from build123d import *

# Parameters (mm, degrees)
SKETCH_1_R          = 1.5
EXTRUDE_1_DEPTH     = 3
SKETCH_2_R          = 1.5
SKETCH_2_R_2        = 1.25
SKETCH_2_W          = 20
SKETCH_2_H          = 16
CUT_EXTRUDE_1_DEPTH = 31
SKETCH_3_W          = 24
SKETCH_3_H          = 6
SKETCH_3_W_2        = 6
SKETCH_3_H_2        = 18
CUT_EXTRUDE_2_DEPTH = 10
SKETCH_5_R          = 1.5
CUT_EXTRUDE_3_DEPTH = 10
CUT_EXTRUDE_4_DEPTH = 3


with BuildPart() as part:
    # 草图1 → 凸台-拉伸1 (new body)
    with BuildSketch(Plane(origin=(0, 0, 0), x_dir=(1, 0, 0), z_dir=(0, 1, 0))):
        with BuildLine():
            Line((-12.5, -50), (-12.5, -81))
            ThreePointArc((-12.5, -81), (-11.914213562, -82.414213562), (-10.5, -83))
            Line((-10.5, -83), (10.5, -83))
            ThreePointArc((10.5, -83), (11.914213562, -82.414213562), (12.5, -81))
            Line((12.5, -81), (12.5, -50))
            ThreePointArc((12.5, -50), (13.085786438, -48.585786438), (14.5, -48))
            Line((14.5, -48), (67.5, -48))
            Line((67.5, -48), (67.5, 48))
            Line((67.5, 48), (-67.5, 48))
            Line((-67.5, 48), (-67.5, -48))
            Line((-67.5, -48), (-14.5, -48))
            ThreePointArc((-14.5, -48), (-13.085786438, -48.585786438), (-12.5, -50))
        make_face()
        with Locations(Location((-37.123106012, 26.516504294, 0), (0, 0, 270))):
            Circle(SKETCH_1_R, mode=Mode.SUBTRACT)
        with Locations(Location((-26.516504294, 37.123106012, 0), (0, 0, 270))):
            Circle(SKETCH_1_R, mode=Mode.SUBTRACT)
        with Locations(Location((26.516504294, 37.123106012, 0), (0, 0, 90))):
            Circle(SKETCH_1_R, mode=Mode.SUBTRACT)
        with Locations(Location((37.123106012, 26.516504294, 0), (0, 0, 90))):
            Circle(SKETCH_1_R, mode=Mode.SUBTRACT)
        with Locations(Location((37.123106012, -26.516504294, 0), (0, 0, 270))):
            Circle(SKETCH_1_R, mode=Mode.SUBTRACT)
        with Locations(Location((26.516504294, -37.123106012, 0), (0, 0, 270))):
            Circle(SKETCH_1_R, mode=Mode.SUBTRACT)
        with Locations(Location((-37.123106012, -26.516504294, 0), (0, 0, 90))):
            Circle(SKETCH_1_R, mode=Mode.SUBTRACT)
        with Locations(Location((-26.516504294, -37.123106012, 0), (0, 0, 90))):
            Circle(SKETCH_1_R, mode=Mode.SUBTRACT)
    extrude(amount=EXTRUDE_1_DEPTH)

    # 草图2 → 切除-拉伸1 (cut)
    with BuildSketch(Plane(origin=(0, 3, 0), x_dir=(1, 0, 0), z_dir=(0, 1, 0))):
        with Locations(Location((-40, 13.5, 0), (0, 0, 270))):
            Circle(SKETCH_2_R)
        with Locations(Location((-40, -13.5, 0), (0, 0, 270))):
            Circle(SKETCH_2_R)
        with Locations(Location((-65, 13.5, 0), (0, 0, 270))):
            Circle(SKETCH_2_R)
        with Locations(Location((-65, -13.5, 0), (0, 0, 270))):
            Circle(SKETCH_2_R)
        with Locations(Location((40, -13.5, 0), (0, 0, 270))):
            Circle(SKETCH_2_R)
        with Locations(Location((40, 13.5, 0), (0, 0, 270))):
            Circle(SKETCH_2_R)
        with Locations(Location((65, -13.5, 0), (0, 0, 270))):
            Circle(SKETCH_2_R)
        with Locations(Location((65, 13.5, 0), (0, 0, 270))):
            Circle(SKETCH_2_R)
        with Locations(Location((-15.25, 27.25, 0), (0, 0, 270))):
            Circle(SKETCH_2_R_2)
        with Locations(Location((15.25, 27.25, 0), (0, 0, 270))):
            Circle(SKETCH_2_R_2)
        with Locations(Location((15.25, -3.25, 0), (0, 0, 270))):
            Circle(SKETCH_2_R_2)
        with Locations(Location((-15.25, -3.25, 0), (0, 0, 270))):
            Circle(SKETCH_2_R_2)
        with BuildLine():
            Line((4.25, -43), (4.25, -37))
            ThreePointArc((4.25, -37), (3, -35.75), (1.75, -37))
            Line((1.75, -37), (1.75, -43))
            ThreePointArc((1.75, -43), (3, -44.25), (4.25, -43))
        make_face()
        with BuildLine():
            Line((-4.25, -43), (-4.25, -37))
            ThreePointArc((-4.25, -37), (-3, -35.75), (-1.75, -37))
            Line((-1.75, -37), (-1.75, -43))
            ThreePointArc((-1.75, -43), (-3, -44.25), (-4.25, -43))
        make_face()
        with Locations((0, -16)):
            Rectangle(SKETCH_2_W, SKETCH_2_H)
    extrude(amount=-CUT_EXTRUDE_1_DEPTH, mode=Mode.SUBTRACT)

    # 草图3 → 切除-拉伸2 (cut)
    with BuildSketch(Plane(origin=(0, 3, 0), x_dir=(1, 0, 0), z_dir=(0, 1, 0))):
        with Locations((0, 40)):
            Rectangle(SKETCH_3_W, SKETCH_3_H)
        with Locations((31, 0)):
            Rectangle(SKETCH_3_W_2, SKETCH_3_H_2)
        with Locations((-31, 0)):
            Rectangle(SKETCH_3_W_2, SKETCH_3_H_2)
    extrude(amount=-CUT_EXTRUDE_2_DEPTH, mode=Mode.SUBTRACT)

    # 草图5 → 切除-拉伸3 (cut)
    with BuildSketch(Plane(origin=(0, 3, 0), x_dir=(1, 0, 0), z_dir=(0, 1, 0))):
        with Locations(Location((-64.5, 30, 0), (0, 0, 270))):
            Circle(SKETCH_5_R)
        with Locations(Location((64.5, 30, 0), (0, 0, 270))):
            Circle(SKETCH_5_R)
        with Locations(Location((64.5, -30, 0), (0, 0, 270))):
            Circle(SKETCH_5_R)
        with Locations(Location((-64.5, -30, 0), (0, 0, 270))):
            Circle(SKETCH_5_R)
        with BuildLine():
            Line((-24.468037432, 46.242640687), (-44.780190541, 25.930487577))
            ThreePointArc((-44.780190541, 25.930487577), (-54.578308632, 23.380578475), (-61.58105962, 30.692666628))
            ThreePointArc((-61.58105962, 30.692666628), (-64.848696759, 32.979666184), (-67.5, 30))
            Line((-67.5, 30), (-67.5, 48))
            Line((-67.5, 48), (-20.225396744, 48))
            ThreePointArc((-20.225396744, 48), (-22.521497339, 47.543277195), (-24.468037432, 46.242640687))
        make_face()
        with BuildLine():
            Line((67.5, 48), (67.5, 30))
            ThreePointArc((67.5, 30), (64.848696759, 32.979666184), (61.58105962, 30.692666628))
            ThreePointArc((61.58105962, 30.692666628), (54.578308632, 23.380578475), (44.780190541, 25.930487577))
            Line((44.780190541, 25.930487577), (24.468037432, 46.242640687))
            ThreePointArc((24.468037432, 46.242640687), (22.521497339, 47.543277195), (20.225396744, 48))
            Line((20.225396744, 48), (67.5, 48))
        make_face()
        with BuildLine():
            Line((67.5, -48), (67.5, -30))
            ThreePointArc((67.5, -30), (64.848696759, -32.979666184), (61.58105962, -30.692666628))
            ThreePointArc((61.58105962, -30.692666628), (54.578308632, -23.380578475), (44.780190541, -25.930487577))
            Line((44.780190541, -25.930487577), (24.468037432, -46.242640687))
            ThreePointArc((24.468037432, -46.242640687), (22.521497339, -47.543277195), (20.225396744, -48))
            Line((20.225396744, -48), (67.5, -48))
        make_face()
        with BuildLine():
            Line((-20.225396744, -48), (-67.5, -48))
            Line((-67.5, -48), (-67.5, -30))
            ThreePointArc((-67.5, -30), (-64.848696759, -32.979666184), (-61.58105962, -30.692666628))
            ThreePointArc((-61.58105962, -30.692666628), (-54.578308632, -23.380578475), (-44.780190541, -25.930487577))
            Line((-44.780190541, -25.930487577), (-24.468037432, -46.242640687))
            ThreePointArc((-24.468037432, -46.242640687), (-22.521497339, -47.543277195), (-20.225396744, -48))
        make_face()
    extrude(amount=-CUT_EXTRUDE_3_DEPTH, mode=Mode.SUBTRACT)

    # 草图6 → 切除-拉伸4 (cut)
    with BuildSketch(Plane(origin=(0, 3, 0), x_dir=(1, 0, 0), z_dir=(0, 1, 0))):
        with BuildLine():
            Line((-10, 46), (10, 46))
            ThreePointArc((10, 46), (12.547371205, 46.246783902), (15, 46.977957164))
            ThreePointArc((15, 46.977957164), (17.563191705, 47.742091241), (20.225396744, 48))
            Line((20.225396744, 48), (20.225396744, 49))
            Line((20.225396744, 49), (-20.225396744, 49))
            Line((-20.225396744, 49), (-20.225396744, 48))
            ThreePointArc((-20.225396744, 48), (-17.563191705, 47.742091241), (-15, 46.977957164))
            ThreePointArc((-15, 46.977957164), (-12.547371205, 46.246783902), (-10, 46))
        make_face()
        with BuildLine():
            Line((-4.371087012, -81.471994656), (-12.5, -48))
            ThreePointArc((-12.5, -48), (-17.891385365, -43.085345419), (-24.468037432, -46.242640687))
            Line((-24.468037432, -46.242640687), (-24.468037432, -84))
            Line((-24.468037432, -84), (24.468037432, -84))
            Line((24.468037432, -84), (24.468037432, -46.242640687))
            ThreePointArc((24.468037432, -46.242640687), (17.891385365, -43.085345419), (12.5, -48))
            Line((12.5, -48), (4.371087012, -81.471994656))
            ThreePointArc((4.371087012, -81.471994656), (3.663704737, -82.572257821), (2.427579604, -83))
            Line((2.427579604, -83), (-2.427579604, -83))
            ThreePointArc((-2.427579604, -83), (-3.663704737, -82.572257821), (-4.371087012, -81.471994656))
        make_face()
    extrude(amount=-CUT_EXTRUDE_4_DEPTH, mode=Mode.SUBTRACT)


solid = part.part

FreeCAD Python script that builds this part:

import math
import FreeCAD as App
import Part
import Sketcher
from FreeCAD import Vector
Q = App.Units.Quantity

doc = App.newDocument("Part")
body = doc.addObject("PartDesign::Body", "Body")

# Sketch on XZ plane
sketch1 = doc.addObject("Sketcher::SketchObject", "Sketch")
body.addObject(sketch1)
sketch1.AttachmentSupport = (doc.XZ_Plane, [""])
sketch1.MapMode = "FlatFace"
sketch1.addGeometry([
    Part.LineSegment(Vector(-12.5, 50, 0), Vector(-12.5, 81, 0)),  # 0
    Part.ArcOfCircle(Part.Circle(Vector(-10.5, 81, 0), Vector(0, 0, 1), 2), math.radians(90), math.radians(180)),  # 1
    Part.LineSegment(Vector(-10.5, 83, 0), Vector(10.5, 83, 0)),  # 2
    Part.ArcOfCircle(Part.Circle(Vector(10.5, 81, 0), Vector(0, 0, 1), 2), math.radians(0), math.radians(90)),  # 3
    Part.LineSegment(Vector(12.5, 81, 0), Vector(12.5, 50, 0)),  # 4
    Part.ArcOfCircle(Part.Circle(Vector(14.5, 50, 0), Vector(0, 0, 1), 2), math.radians(-180), math.radians(-90)),  # 5
    Part.LineSegment(Vector(14.5, 48, 0), Vector(67.5, 48, 0)),  # 6
    Part.LineSegment(Vector(67.5, 48, 0), Vector(67.5, -48, 0)),  # 7
    Part.LineSegment(Vector(67.5, -48, 0), Vector(-67.5, -48, 0)),  # 8
    Part.LineSegment(Vector(-67.5, -48, 0), Vector(-67.5, 48, 0)),  # 9
    Part.LineSegment(Vector(-67.5, 48, 0), Vector(-14.5, 48, 0)),  # 10
    Part.ArcOfCircle(Part.Circle(Vector(-14.5, 50, 0), Vector(0, 0, 1), 2), math.radians(-90), math.radians(0)),  # 11
    Part.Circle(Vector(-26.5, 37.1, 0), Vector(0, 0, 1), 1.5),  # 12
    Part.Circle(Vector(-37.1, 26.5, 0), Vector(0, 0, 1), 1.5),  # 13
    Part.Circle(Vector(26.5, 37.1, 0), Vector(0, 0, 1), 1.5),  # 14
    Part.Circle(Vector(37.1, 26.5, 0), Vector(0, 0, 1), 1.5),  # 15
    Part.Circle(Vector(-37.1, -26.5, 0), Vector(0, 0, 1), 1.5),  # 16
    Part.Circle(Vector(-26.5, -37.1, 0), Vector(0, 0, 1), 1.5),  # 17
    Part.Circle(Vector(37.1, -26.5, 0), Vector(0, 0, 1), 1.5),  # 18
    Part.Circle(Vector(26.5, -37.1, 0), Vector(0, 0, 1), 1.5),  # 19
], False)
sketch1.addConstraint([
    Sketcher.Constraint("Tangent", 0, 2, 1, 2),
    Sketcher.Constraint("Tangent", 1, 1, 2, 1),
    Sketcher.Constraint("Tangent", 2, 2, 3, 2),
    Sketcher.Constraint("Tangent", 3, 1, 4, 1),
    Sketcher.Constraint("Tangent", 4, 2, 5, 1),
    Sketcher.Constraint("Tangent", 5, 2, 6, 1),
    Sketcher.Constraint("Coincident", 6, 2, 7, 1),
    Sketcher.Constraint("Coincident", 7, 2, 8, 1),
    Sketcher.Constraint("Coincident", 8, 2, 9, 1),
    Sketcher.Constraint("Coincident", 9, 2, 10, 1),
    Sketcher.Constraint("Tangent", 10, 2, 11, 1),
    Sketcher.Constraint("Tangent", 11, 2, 0, 1),
    Sketcher.Constraint("Vertical", 0),
    Sketcher.Constraint("Horizontal", 2),
    Sketcher.Constraint("Vertical", 4),
    Sketcher.Constraint("Horizontal", 6),
    Sketcher.Constraint("Vertical", 7),
    Sketcher.Constraint("Horizontal", 8),
    Sketcher.Constraint("Vertical", 9),
    Sketcher.Constraint("Horizontal", 10),
    Sketcher.Constraint("Equal", 1, 3),
    Sketcher.Constraint("Equal", 3, 5),
    Sketcher.Constraint("Equal", 5, 11),
    Sketcher.Constraint("Equal", 12, 13),
    Sketcher.Constraint("Equal", 13, 14),
    Sketcher.Constraint("Equal", 14, 15),
    Sketcher.Constraint("Equal", 15, 16),
    Sketcher.Constraint("Equal", 16, 17),
    Sketcher.Constraint("Equal", 17, 18),
    Sketcher.Constraint("Equal", 18, 19),
    Sketcher.Constraint("Symmetric", 15, 3, 16, 3, -1, 1),
    Sketcher.Constraint("Symmetric", 14, 3, 17, 3, -1, 1),
    Sketcher.Constraint("Symmetric", 13, 3, 18, 3, -1, 1),
    Sketcher.Constraint("Symmetric", 12, 3, 19, 3, -1, 1),
    Sketcher.Constraint("Symmetric", 6, 2, 8, 2, -1, 1),
    Sketcher.Constraint("Symmetric", 5, 3, 11, 3, -2),
    Sketcher.Constraint("Symmetric", 12, 3, 14, 3, -2),
    Sketcher.Constraint("Symmetric", 13, 3, 15, 3, -2),
    Sketcher.Constraint("Diameter", 12, Q("3 mm")),
    Sketcher.Constraint("Radius", 1, Q("2 mm")),
    Sketcher.Constraint("DistanceX", 2, 1, 2, 2, Q("21 mm")),
    Sketcher.Constraint("DistanceX", 6, 1, 6, 2, Q("53 mm")),
    Sketcher.Constraint("DistanceY", 0, 1, 0, 2, Q("31 mm")),
    Sketcher.Constraint("DistanceY", 7, 2, 7, 1, Q("96 mm")),
    Sketcher.Constraint("DistanceX", 13, 3, 12, 3, Q("10.606602 mm")),
    Sketcher.Constraint("DistanceY", 13, 3, 12, 3, Q("10.606602 mm")),
    Sketcher.Constraint("DistanceX", 12, 3, 14, 3, Q("53.033009 mm")),
    Sketcher.Constraint("DistanceY", 16, 3, 13, 3, Q("53.033009 mm")),
])
pad1 = doc.addObject("PartDesign::Pad", "Pad")
body.addObject(pad1)
pad1.Profile = sketch1
pad1.Length = 3
pad1.Reversed = True

# Sketch on XZ plane
sketch2 = doc.addObject("Sketcher::SketchObject", "Sketch001")
body.addObject(sketch2)
sketch2.AttachmentSupport = (doc.XZ_Plane, [""])
sketch2.MapMode = "FlatFace"
sketch2.AttachmentOffset = App.Placement(Vector(0, 0, -3), App.Rotation())
sketch2.addGeometry([
    Part.Circle(Vector(-40, -13.5, 0), Vector(0, 0, 1), 1.5),  # 0
    Part.Circle(Vector(-40, 13.5, 0), Vector(0, 0, 1), 1.5),  # 1
    Part.Circle(Vector(-65, -13.5, 0), Vector(0, 0, 1), 1.5),  # 2
    Part.Circle(Vector(-65, 13.5, 0), Vector(0, 0, 1), 1.5),  # 3
    Part.Circle(Vector(40, 13.5, 0), Vector(0, 0, 1), 1.5),  # 4
    Part.Circle(Vector(40, -13.5, 0), Vector(0, 0, 1), 1.5),  # 5
    Part.Circle(Vector(65, 13.5, 0), Vector(0, 0, 1), 1.5),  # 6
    Part.Circle(Vector(65, -13.5, 0), Vector(0, 0, 1), 1.5),  # 7
    Part.Circle(Vector(-15.2, -27.2, 0), Vector(0, 0, 1), 1.2),  # 8
    Part.Circle(Vector(15.2, -27.2, 0), Vector(0, 0, 1), 1.2),  # 9
    Part.Circle(Vector(15.2, 3.2, 0), Vector(0, 0, 1), 1.2),  # 10
    Part.Circle(Vector(-15.2, 3.2, 0), Vector(0, 0, 1), 1.2),  # 11
    Part.LineSegment(Vector(4.2, 43, 0), Vector(4.2, 37, 0)),  # 12
    Part.ArcOfCircle(Part.Circle(Vector(3, 37, 0), Vector(0, 0, 1), 1.2), math.radians(180), math.radians(360)),  # 13
    Part.LineSegment(Vector(1.8, 37, 0), Vector(1.8, 43, 0)),  # 14
    Part.ArcOfCircle(Part.Circle(Vector(3, 43, 0), Vector(0, 0, 1), 1.2), math.radians(0), math.radians(180)),  # 15
    Part.LineSegment(Vector(-4.2, 37, 0), Vector(-4.2, 43, 0)),  # 16
    Part.ArcOfCircle(Part.Circle(Vector(-3, 43, 0), Vector(0, 0, 1), 1.2), math.radians(0), math.radians(180)),  # 17
    Part.LineSegment(Vector(-1.8, 43, 0), Vector(-1.8, 37, 0)),  # 18
    Part.ArcOfCircle(Part.Circle(Vector(-3, 37, 0), Vector(0, 0, 1), 1.2), math.radians(180), math.radians(360)),  # 19
    Part.LineSegment(Vector(-10, 8, 0), Vector(-10, 24, 0)),  # 20
    Part.LineSegment(Vector(-10, 24, 0), Vector(10, 24, 0)),  # 21
    Part.LineSegment(Vector(10, 24, 0), Vector(10, 8, 0)),  # 22
    Part.LineSegment(Vector(10, 8, 0), Vector(-10, 8, 0)),  # 23
], False)
sketch2.addConstraint([
    Sketcher.Constraint("Tangent", 12, 2, 13, 2),
    Sketcher.Constraint("Tangent", 13, 1, 14, 1),
    Sketcher.Constraint("Tangent", 14, 2, 15, 2),
    Sketcher.Constraint("Tangent", 15, 1, 12, 1),
    Sketcher.Constraint("Tangent", 16, 2, 17, 2),
    Sketcher.Constraint("Tangent", 17, 1, 18, 1),
    Sketcher.Constraint("Tangent", 18, 2, 19, 2),
    Sketcher.Constraint("Tangent", 19, 1, 16, 1),
    Sketcher.Constraint("Coincident", 20, 2, 21, 1),
    Sketcher.Constraint("Coincident", 21, 2, 22, 1),
    Sketcher.Constraint("Coincident", 22, 2, 23, 1),
    Sketcher.Constraint("Coincident", 23, 2, 20, 1),
    Sketcher.Constraint("Vertical", 12),
    Sketcher.Constraint("Vertical", 14),
    Sketcher.Constraint("Vertical", 16),
    Sketcher.Constraint("Vertical", 18),
    Sketcher.Constraint("Vertical", 20),
    Sketcher.Constraint("Horizontal", 21),
    Sketcher.Constraint("Vertical", 22),
    Sketcher.Constraint("Horizontal", 23),
    Sketcher.Constraint("Equal", 0, 1),
    Sketcher.Constraint("Equal", 1, 2),
    Sketcher.Constraint("Equal", 2, 3),
    Sketcher.Constraint("Equal", 3, 4),
    Sketcher.Constraint("Equal", 4, 5),
    Sketcher.Constraint("Equal", 5, 6),
    Sketcher.Constraint("Equal", 6, 7),
    Sketcher.Constraint("Equal", 8, 9),
    Sketcher.Constraint("Equal", 9, 10),
    Sketcher.Constraint("Equal", 10, 11),
    Sketcher.Constraint("Equal", 11, 13),
    Sketcher.Constraint("Equal", 15, 17),
    Sketcher.Constraint("Symmetric", 0, 3, 4, 3, -1, 1),
    Sketcher.Constraint("Symmetric", 1, 3, 5, 3, -1, 1),
    Sketcher.Constraint("Symmetric", 2, 3, 6, 3, -1, 1),
    Sketcher.Constraint("Symmetric", 3, 3, 7, 3, -1, 1),
    Sketcher.Constraint("Symmetric", 1, 3, 4, 3, -2),
    Sketcher.Constraint("Symmetric", 3, 3, 6, 3, -2),
    Sketcher.Constraint("Symmetric", 8, 3, 9, 3, -2),
    Sketcher.Constraint("Symmetric", 10, 3, 11, 3, -2),
    Sketcher.Constraint("Symmetric", 15, 3, 17, 3, -2),
    Sketcher.Constraint("Horizontal", 0, 3, 2, 3),
    Sketcher.Constraint("Horizontal", 13, 3, 19, 3),
    Sketcher.Constraint("Vertical", 9, 3, 10, 3),
    Sketcher.Constraint("Diameter", 0, Q("3 mm")),
    Sketcher.Constraint("Diameter", 8, Q("2.5 mm")),
    Sketcher.Constraint("DistanceX", 21, 1, 21, 2, Q("20 mm")),
    Sketcher.Constraint("DistanceY", 12, 2, 12, 1, Q("6 mm")),
    Sketcher.Constraint("DistanceY", 20, 1, 20, 2, Q("16 mm")),
    Sketcher.Constraint("DistanceX", 0, 3, -1, 1, Q("40 mm")),
    Sketcher.Constraint("DistanceX", 2, 3, -1, 1, Q("65 mm")),
    Sketcher.Constraint("DistanceX", -1, 1, 13, 3, Q("3 mm")),
    Sketcher.Constraint("DistanceY", -1, 1, 13, 3, Q("37 mm")),
    Sketcher.Constraint("DistanceX", 20, 2, -1, 1, Q("10 mm")),
    Sketcher.Constraint("DistanceY", -1, 1, 20, 2, Q("24 mm")),
    Sketcher.Constraint("DistanceY", 0, 3, 1, 3, Q("27 mm")),
    Sketcher.Constraint("DistanceX", 12, 2, 10, 3, Q("11 mm")),
    Sketcher.Constraint("DistanceY", 9, 3, 10, 3, Q("30.5 mm")),
    Sketcher.Constraint("DistanceY", 8, 3, -1, 1, Q("27.25 mm")),
])
pocket1 = doc.addObject("PartDesign::Pocket", "Pocket")
body.addObject(pocket1)
pocket1.Profile = sketch2
pocket1.Length = 31
pocket1.Reversed = True

# Sketch on XZ plane
sketch3 = doc.addObject("Sketcher::SketchObject", "Sketch002")
body.addObject(sketch3)
sketch3.AttachmentSupport = (doc.XZ_Plane, [""])
sketch3.MapMode = "FlatFace"
sketch3.AttachmentOffset = App.Placement(Vector(0, 0, -3), App.Rotation())
sketch3.addGeometry([
    Part.LineSegment(Vector(-12, -43, 0), Vector(-12, -37, 0)),  # 0
    Part.LineSegment(Vector(-12, -37, 0), Vector(12, -37, 0)),  # 1
    Part.LineSegment(Vector(12, -37, 0), Vector(12, -43, 0)),  # 2
    Part.LineSegment(Vector(12, -43, 0), Vector(-12, -43, 0)),  # 3
    Part.LineSegment(Vector(28, -9, 0), Vector(28, 9, 0)),  # 4
    Part.LineSegment(Vector(28, 9, 0), Vector(34, 9, 0)),  # 5
    Part.LineSegment(Vector(34, 9, 0), Vector(34, -9, 0)),  # 6
    Part.LineSegment(Vector(34, -9, 0), Vector(28, -9, 0)),  # 7
    Part.LineSegment(Vector(-34, -9, 0), Vector(-34, 9, 0)),  # 8
    Part.LineSegment(Vector(-34, 9, 0), Vector(-28, 9, 0)),  # 9
    Part.LineSegment(Vector(-28, 9, 0), Vector(-28, -9, 0)),  # 10
    Part.LineSegment(Vector(-28, -9, 0), Vector(-34, -9, 0)),  # 11
], False)
sketch3.addConstraint([
    Sketcher.Constraint("Coincident", 0, 2, 1, 1),
    Sketcher.Constraint("Coincident", 1, 2, 2, 1),
    Sketcher.Constraint("Coincident", 2, 2, 3, 1),
    Sketcher.Constraint("Coincident", 3, 2, 0, 1),
    Sketcher.Constraint("Coincident", 4, 2, 5, 1),
    Sketcher.Constraint("Coincident", 5, 2, 6, 1),
    Sketcher.Constraint("Coincident", 6, 2, 7, 1),
    Sketcher.Constraint("Coincident", 7, 2, 4, 1),
    Sketcher.Constraint("Coincident", 8, 2, 9, 1),
    Sketcher.Constraint("Coincident", 9, 2, 10, 1),
    Sketcher.Constraint("Coincident", 10, 2, 11, 1),
    Sketcher.Constraint("Coincident", 11, 2, 8, 1),
    Sketcher.Constraint("Vertical", 0),
    Sketcher.Constraint("Horizontal", 1),
    Sketcher.Constraint("Vertical", 2),
    Sketcher.Constraint("Horizontal", 3),
    Sketcher.Constraint("Vertical", 4),
    Sketcher.Constraint("Horizontal", 5),
    Sketcher.Constraint("Vertical", 6),
    Sketcher.Constraint("Horizontal", 7),
    Sketcher.Constraint("Vertical", 8),
    Sketcher.Constraint("Horizontal", 9),
    Sketcher.Constraint("Vertical", 10),
    Sketcher.Constraint("Horizontal", 11),
    Sketcher.Constraint("Symmetric", 6, 2, 8, 2, -1, 1),
    Sketcher.Constraint("Symmetric", 4, 2, 10, 2, -1, 1),
    Sketcher.Constraint("Horizontal", 5, 2, 8, 2),
    Sketcher.Constraint("Equal", 11, 0),
    Sketcher.Constraint("DistanceX", 1, 1, 1, 2, Q("24 mm")),
    Sketcher.Constraint("DistanceX", 5, 1, 5, 2, Q("6 mm")),
    Sketcher.Constraint("DistanceY", 4, 1, 4, 2, Q("18 mm")),
    Sketcher.Constraint("DistanceX", 0, 2, -1, 1, Q("12 mm")),
    Sketcher.Constraint("DistanceY", 0, 2, -1, 1, Q("37 mm")),
    Sketcher.Constraint("DistanceX", -1, 1, 4, 2, Q("28 mm")),
])
pocket2 = doc.addObject("PartDesign::Pocket", "Pocket001")
body.addObject(pocket2)
pocket2.Profile = sketch3
pocket2.Length = 10
pocket2.Reversed = True

# Sketch on XZ plane
sketch4 = doc.addObject("Sketcher::SketchObject", "Sketch003")
body.addObject(sketch4)
sketch4.AttachmentSupport = (doc.XZ_Plane, [""])
sketch4.MapMode = "FlatFace"
sketch4.AttachmentOffset = App.Placement(Vector(0, 0, -3), App.Rotation())
sketch4.addGeometry([
    Part.Circle(Vector(-64.5, -30, 0), Vector(0, 0, 1), 1.5),  # 0
    Part.Circle(Vector(64.5, -30, 0), Vector(0, 0, 1), 1.5),  # 1
    Part.Circle(Vector(64.5, 30, 0), Vector(0, 0, 1), 1.5),  # 2
    Part.Circle(Vector(-64.5, 30, 0), Vector(0, 0, 1), 1.5),  # 3
    Part.LineSegment(Vector(-44.8, -25.9, 0), Vector(-24.5, -46.2, 0)),  # 4
    Part.ArcOfCircle(Part.Circle(Vector(-20.2, -42, 0), Vector(0, 0, 1), 6), math.radians(-135), math.radians(-90)),  # 5
    Part.LineSegment(Vector(-20.2, -48, 0), Vector(-67.5, -48, 0)),  # 6
    Part.LineSegment(Vector(-67.5, -48, 0), Vector(-67.5, -30, 0)),  # 7
    Part.ArcOfCircle(Part.Circle(Vector(-64.5, -30, 0), Vector(0, 0, 1), 3), math.radians(180), math.radians(347)),  # 8
    Part.ArcOfCircle(Part.Circle(Vector(-51.9, -33, 0), Vector(0, 0, 1), 10), math.radians(45), math.radians(167)),  # 9
    Part.LineSegment(Vector(67.5, -30, 0), Vector(67.5, -48, 0)),  # 10
    Part.LineSegment(Vector(67.5, -48, 0), Vector(20.2, -48, 0)),  # 11
    Part.ArcOfCircle(Part.Circle(Vector(20.2, -42, 0), Vector(0, 0, 1), 6), math.radians(-90), math.radians(-45)),  # 12
    Part.LineSegment(Vector(24.5, -46.2, 0), Vector(44.8, -25.9, 0)),  # 13
    Part.ArcOfCircle(Part.Circle(Vector(51.9, -33, 0), Vector(0, 0, 1), 10), math.radians(13), math.radians(135)),  # 14
    Part.ArcOfCircle(Part.Circle(Vector(64.5, -30, 0), Vector(0, 0, 1), 3), math.radians(-167), math.radians(0)),  # 15
    Part.LineSegment(Vector(67.5, 48, 0), Vector(67.5, 30, 0)),  # 16
    Part.ArcOfCircle(Part.Circle(Vector(64.5, 30, 0), Vector(0, 0, 1), 3), math.radians(0), math.radians(167)),  # 17
    Part.ArcOfCircle(Part.Circle(Vector(51.9, 33, 0), Vector(0, 0, 1), 10), math.radians(-135), math.radians(-13)),  # 18
    Part.LineSegment(Vector(44.8, 25.9, 0), Vector(24.5, 46.2, 0)),  # 19
    Part.ArcOfCircle(Part.Circle(Vector(20.2, 42, 0), Vector(0, 0, 1), 6), math.radians(45), math.radians(90)),  # 20
    Part.LineSegment(Vector(20.2, 48, 0), Vector(67.5, 48, 0)),  # 21
    Part.LineSegment(Vector(-67.5, 48, 0), Vector(-20.2, 48, 0)),  # 22
    Part.ArcOfCircle(Part.Circle(Vector(-20.2, 42, 0), Vector(0, 0, 1), 6), math.radians(90), math.radians(135)),  # 23
    Part.LineSegment(Vector(-24.5, 46.2, 0), Vector(-44.8, 25.9, 0)),  # 24
    Part.ArcOfCircle(Part.Circle(Vector(-51.9, 33, 0), Vector(0, 0, 1), 10), math.radians(-167), math.radians(-45)),  # 25
    Part.ArcOfCircle(Part.Circle(Vector(-64.5, 30, 0), Vector(0, 0, 1), 3), math.radians(13), math.radians(180)),  # 26
    Part.LineSegment(Vector(-67.5, 30, 0), Vector(-67.5, 48, 0)),  # 27
], False)
sketch4.addConstraint([
    Sketcher.Constraint("Tangent", 4, 2, 5, 1),
    Sketcher.Constraint("Tangent", 5, 2, 6, 1),
    Sketcher.Constraint("Coincident", 6, 2, 7, 1),
    Sketcher.Constraint("Tangent", 7, 2, 8, 1),
    Sketcher.Constraint("Tangent", 8, 2, 9, 2),
    Sketcher.Constraint("Tangent", 9, 1, 4, 1),
    Sketcher.Constraint("Coincident", 10, 2, 11, 1),
    Sketcher.Constraint("Tangent", 11, 2, 12, 1),
    Sketcher.Constraint("Tangent", 12, 2, 13, 1),
    Sketcher.Constraint("Tangent", 13, 2, 14, 2),
    Sketcher.Constraint("Tangent", 14, 1, 15, 1),
    Sketcher.Constraint("Tangent", 15, 2, 10, 1),
    Sketcher.Constraint("Tangent", 16, 2, 17, 1),
    Sketcher.Constraint("Tangent", 17, 2, 18, 2),
    Sketcher.Constraint("Tangent", 18, 1, 19, 1),
    Sketcher.Constraint("Tangent", 19, 2, 20, 1),
    Sketcher.Constraint("Tangent", 20, 2, 21, 1),
    Sketcher.Constraint("Coincident", 21, 2, 16, 1),
    Sketcher.Constraint("Tangent", 22, 2, 23, 1),
    Sketcher.Constraint("Tangent", 23, 2, 24, 1),
    Sketcher.Constraint("Tangent", 24, 2, 25, 2),
    Sketcher.Constraint("Tangent", 25, 1, 26, 1),
    Sketcher.Constraint("Tangent", 26, 2, 27, 1),
    Sketcher.Constraint("Coincident", 27, 2, 22, 1),
    Sketcher.Constraint("Horizontal", 6),
    Sketcher.Constraint("Vertical", 7),
    Sketcher.Constraint("Vertical", 10),
    Sketcher.Constraint("Horizontal", 11),
    Sketcher.Constraint("Vertical", 16),
    Sketcher.Constraint("Horizontal", 21),
    Sketcher.Constraint("Horizontal", 22),
    Sketcher.Constraint("Vertical", 27),
    Sketcher.Constraint("Coincident", 8, 3, 0, 3),
    Sketcher.Constraint("Coincident", 15, 3, 1, 3),
    Sketcher.Constraint("Coincident", 17, 3, 2, 3),
    Sketcher.Constraint("Coincident", 26, 3, 3, 3),
    Sketcher.Constraint("Equal", 0, 1),
    Sketcher.Constraint("Equal", 1, 2),
    Sketcher.Constraint("Equal", 2, 3),
    Sketcher.Constraint("Equal", 5, 12),
    Sketcher.Constraint("Equal", 9, 14),
    Sketcher.Constraint("Equal", 8, 15),
    Sketcher.Constraint("Equal", 15, 17),
    Sketcher.Constraint("Equal", 14, 18),
    Sketcher.Constraint("Equal", 12, 20),
    Sketcher.Constraint("Equal", 20, 23),
    Sketcher.Constraint("Equal", 18, 25),
    Sketcher.Constraint("Equal", 17, 26),
    Sketcher.Constraint("Symmetric", 0, 3, 2, 3, -1, 1),
    Sketcher.Constraint("Symmetric", 1, 3, 3, 3, -1, 1),
    Sketcher.Constraint("Symmetric", 5, 3, 20, 3, -1, 1),
    Sketcher.Constraint("Symmetric", 12, 3, 23, 3, -1, 1),
    Sketcher.Constraint("Symmetric", 0, 3, 1, 3, -2),
    Sketcher.Constraint("Symmetric", 5, 3, 12, 3, -2),
    Sketcher.Constraint("Perpendicular", 4, 13),
    Sketcher.Constraint("Perpendicular", 13, 19),
    Sketcher.Constraint("Perpendicular", 19, 24),
    Sketcher.Constraint("Horizontal", 9, 3, 14, 3),
    Sketcher.Constraint("Diameter", 0, Q("3 mm")),
    Sketcher.Constraint("Radius", 5, Q("6 mm")),
    Sketcher.Constraint("Radius", 8, Q("3 mm")),
    Sketcher.Constraint("Radius", 9, Q("10 mm")),
    Sketcher.Constraint("DistanceY", 7, 1, 7, 2, Q("18 mm")),
    Sketcher.Constraint("DistanceY", 0, 3, -1, 1, Q("30 mm")),
    Sketcher.Constraint("DistanceX", 0, 3, 1, 3, Q("129 mm")),
    Sketcher.Constraint("DistanceX", 8, 2, 9, 3, Q("9.729801 mm")),
])
pocket3 = doc.addObject("PartDesign::Pocket", "Pocket002")
body.addObject(pocket3)
pocket3.Profile = sketch4
pocket3.Length = 10
pocket3.Reversed = True

# Sketch on XZ plane
sketch5 = doc.addObject("Sketcher::SketchObject", "Sketch004")
body.addObject(sketch5)
sketch5.AttachmentSupport = (doc.XZ_Plane, [""])
sketch5.MapMode = "FlatFace"
sketch5.AttachmentOffset = App.Placement(Vector(0, 0, -3), App.Rotation())
sketch5.addGeometry([
    Part.LineSegment(Vector(-10, -46, 0), Vector(10, -46, 0)),  # 0
    Part.ArcOfCircle(Part.Circle(Vector(10, -59.3, 0), Vector(0, 0, 1), 13.3), math.radians(68), math.radians(90)),  # 1
    Part.ArcOfCircle(Part.Circle(Vector(20.2, -34.1, 0), Vector(0, 0, 1), 13.9), math.radians(-112), math.radians(-90)),  # 2
    Part.LineSegment(Vector(20.2, -48, 0), Vector(20.2, -49, 0)),  # 3
    Part.LineSegment(Vector(20.2, -49, 0), Vector(-20.2, -49, 0)),  # 4
    Part.LineSegment(Vector(-20.2, -49, 0), Vector(-20.2, -48, 0)),  # 5
    Part.ArcOfCircle(Part.Circle(Vector(-20.2, -34.1, 0), Vector(0, 0, 1), 13.9), math.radians(-90), math.radians(-68)),  # 6
    Part.ArcOfCircle(Part.Circle(Vector(-10, -59.3, 0), Vector(0, 0, 1), 13.3), math.radians(90), math.radians(112)),  # 7
    Part.LineSegment(Vector(-4.4, 81.5, 0), Vector(-12.5, 48, 0)),  # 8
    Part.ArcOfCircle(Part.Circle(Vector(-18.8, 49.5, 0), Vector(0, 0, 1), 6.5), math.radians(-150), math.radians(-14)),  # 9
    Part.LineSegment(Vector(-24.5, 46.2, 0), Vector(-24.5, 84, 0)),  # 10
    Part.LineSegment(Vector(-24.5, 84, 0), Vector(24.5, 84, 0)),  # 11
    Part.LineSegment(Vector(24.5, 84, 0), Vector(24.5, 46.2, 0)),  # 12
    Part.ArcOfCircle(Part.Circle(Vector(18.8, 49.5, 0), Vector(0, 0, 1), 6.5), math.radians(-166), math.radians(-30)),  # 13
    Part.LineSegment(Vector(12.5, 48, 0), Vector(4.4, 81.5, 0)),  # 14
    Part.ArcOfCircle(Part.Circle(Vector(2.4, 81, 0), Vector(0, 0, 1), 2), math.radians(14), math.radians(90)),  # 15
    Part.LineSegment(Vector(2.4, 83, 0), Vector(-2.4, 83, 0)),  # 16
    Part.ArcOfCircle(Part.Circle(Vector(-2.4, 81, 0), Vector(0, 0, 1), 2), math.radians(90), math.radians(166)),  # 17
], False)
sketch5.addConstraint([
    Sketcher.Constraint("Tangent", 0, 2, 1, 2),
    Sketcher.Constraint("Tangent", 1, 1, 2, 1),
    Sketcher.Constraint("Coincident", 2, 2, 3, 1),
    Sketcher.Constraint("Coincident", 3, 2, 4, 1),
    Sketcher.Constraint("Coincident", 4, 2, 5, 1),
    Sketcher.Constraint("Coincident", 5, 2, 6, 1),
    Sketcher.Constraint("Tangent", 6, 2, 7, 2),
    Sketcher.Constraint("Tangent", 7, 1, 0, 1),
    Sketcher.Constraint("Tangent", 8, 2, 9, 2),
    Sketcher.Constraint("Coincident", 9, 1, 10, 1),
    Sketcher.Constraint("Coincident", 10, 2, 11, 1),
    Sketcher.Constraint("Coincident", 11, 2, 12, 1),
    Sketcher.Constraint("Coincident", 12, 2, 13, 2),
    Sketcher.Constraint("Tangent", 13, 1, 14, 1),
    Sketcher.Constraint("Tangent", 14, 2, 15, 1),
    Sketcher.Constraint("Tangent", 15, 2, 16, 1),
    Sketcher.Constraint("Tangent", 16, 2, 17, 1),
    Sketcher.Constraint("Tangent", 17, 2, 8, 1),
    Sketcher.Constraint("Horizontal", 0),
    Sketcher.Constraint("Vertical", 3),
    Sketcher.Constraint("Horizontal", 4),
    Sketcher.Constraint("Vertical", 5),
    Sketcher.Constraint("Vertical", 10),
    Sketcher.Constraint("Horizontal", 11),
    Sketcher.Constraint("Vertical", 12),
    Sketcher.Constraint("Horizontal", 16),
    Sketcher.Constraint("Equal", 2, 6),
    Sketcher.Constraint("Equal", 1, 7),
    Sketcher.Constraint("Equal", 9, 13),
    Sketcher.Constraint("Equal", 15, 17),
    Sketcher.Constraint("Symmetric", 2, 3, 6, 3, -2),
    Sketcher.Constraint("Symmetric", 9, 3, 13, 3, -2),
    Sketcher.Constraint("Horizontal", 9, 1, 12, 2),
    Sketcher.Constraint("Horizontal", 8, 2, 13, 1),
    Sketcher.Constraint("Vertical", 6, 3, 4, 2),
    Sketcher.Constraint("Radius", 15, Q("2 mm")),
    Sketcher.Constraint("DistanceX", 0, 1, 0, 2, Q("20 mm")),
    Sketcher.Constraint("DistanceY", 3, 2, 3, 1, Q("1 mm")),
    Sketcher.Constraint("DistanceY", -1, 1, 15, 3, Q("81 mm")),
    Sketcher.Constraint("DistanceY", 0, 2, -1, 1, Q("46 mm")),
    Sketcher.Constraint("DistanceX", -1, 1, 1, 1, Q("15 mm")),
    Sketcher.Constraint("DistanceY", 2, 2, -1, 1, Q("48 mm")),
    Sketcher.Constraint("DistanceY", -1, 1, 8, 2, Q("48 mm")),
    Sketcher.Constraint("DistanceY", -1, 1, 10, 2, Q("84 mm")),
    Sketcher.Constraint("DistanceX", 8, 2, 13, 1, Q("25 mm")),
    Sketcher.Constraint("Radius", 2, Q("13.86896 mm")),
    Sketcher.Constraint("Radius", 9, Q("6.523359 mm")),
    Sketcher.Constraint("DistanceX", 16, 2, 16, 1, Q("4.855159 mm")),
    Sketcher.Constraint("DistanceY", 10, 1, 10, 2, Q("37.757359 mm")),
    Sketcher.Constraint("DistanceX", 4, 2, 4, 1, Q("40.450793 mm")),
])
pocket4 = doc.addObject("PartDesign::Pocket", "Pocket003")
body.addObject(pocket4)
pocket4.Profile = sketch5
pocket4.Length = 3
pocket4.Reversed = True

doc.recompute()
